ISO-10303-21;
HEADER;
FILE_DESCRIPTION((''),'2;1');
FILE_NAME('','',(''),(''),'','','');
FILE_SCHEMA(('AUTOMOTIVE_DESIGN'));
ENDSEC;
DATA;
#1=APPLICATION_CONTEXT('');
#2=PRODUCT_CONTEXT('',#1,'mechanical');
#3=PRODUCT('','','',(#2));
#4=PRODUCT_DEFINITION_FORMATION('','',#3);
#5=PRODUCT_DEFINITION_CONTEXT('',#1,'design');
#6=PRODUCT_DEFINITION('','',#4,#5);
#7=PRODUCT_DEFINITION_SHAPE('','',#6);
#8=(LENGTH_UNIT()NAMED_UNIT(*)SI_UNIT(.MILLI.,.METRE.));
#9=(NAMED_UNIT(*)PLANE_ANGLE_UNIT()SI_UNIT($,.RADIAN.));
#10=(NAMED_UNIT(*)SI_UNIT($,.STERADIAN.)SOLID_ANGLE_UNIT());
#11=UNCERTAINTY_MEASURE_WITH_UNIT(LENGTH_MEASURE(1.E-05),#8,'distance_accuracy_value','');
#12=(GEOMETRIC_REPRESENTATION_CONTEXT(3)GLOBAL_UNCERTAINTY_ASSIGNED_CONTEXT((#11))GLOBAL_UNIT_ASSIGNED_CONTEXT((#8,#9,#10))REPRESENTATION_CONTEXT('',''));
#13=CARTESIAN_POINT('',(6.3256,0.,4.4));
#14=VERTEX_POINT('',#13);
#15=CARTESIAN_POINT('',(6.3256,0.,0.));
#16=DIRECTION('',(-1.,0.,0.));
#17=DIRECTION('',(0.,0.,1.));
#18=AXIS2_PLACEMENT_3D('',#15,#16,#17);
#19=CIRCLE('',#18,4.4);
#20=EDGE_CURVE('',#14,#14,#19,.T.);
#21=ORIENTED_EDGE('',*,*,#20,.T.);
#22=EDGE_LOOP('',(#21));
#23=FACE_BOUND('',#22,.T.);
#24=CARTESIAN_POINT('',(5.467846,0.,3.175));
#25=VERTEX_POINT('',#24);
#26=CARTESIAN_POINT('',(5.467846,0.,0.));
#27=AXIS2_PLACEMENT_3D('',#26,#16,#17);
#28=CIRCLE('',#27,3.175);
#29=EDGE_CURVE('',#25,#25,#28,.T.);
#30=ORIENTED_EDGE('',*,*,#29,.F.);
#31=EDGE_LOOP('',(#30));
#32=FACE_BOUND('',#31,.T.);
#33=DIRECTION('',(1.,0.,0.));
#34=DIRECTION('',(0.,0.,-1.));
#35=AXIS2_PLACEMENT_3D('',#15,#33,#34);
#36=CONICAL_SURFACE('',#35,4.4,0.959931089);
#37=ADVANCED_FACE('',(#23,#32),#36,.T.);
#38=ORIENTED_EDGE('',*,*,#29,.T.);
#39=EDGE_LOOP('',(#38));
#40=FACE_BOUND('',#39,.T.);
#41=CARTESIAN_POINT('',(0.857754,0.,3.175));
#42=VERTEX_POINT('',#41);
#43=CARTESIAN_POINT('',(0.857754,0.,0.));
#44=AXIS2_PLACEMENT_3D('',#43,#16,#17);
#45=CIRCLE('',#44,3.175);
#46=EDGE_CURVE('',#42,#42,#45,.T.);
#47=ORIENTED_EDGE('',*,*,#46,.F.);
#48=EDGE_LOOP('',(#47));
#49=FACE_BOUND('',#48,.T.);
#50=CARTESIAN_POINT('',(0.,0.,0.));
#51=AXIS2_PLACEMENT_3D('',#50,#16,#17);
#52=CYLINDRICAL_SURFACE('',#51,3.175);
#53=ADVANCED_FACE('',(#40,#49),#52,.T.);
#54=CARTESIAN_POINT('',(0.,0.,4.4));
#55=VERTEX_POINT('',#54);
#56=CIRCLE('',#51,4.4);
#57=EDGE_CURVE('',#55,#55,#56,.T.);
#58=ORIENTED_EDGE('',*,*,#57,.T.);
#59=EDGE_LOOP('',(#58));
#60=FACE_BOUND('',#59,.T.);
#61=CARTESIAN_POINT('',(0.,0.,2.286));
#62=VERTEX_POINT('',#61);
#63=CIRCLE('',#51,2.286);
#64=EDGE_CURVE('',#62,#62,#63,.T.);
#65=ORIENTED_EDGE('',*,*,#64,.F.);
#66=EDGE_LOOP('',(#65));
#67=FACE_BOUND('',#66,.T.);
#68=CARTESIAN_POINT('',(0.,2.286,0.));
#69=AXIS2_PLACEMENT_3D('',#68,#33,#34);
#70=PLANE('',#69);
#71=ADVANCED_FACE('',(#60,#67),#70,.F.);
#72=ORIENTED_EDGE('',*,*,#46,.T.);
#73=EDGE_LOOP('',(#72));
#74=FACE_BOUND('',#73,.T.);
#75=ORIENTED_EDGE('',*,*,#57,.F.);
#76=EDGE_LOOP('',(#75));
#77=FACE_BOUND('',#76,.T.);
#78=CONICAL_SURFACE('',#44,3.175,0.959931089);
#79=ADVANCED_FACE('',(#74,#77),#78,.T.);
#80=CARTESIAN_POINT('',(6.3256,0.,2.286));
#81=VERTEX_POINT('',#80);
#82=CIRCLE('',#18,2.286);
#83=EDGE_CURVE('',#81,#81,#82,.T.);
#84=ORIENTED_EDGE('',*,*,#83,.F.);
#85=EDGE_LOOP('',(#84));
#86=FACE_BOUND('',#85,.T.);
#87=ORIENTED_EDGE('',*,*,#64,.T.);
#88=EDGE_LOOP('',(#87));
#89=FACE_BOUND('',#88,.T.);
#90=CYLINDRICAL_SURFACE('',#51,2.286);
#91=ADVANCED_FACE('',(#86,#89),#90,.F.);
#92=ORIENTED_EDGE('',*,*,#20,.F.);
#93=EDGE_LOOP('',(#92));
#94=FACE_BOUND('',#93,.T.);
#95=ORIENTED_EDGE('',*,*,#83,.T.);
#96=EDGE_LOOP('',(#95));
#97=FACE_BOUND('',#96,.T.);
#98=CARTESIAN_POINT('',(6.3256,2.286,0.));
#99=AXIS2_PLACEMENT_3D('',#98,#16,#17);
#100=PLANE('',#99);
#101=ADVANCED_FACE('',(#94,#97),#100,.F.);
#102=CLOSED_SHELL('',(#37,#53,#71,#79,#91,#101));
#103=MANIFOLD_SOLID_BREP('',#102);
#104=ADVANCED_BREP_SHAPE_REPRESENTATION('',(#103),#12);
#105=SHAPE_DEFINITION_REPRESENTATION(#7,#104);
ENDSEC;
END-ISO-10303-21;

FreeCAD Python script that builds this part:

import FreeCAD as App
import Part
import Sketcher
Q = App.Units.Quantity


def add_polygon(sketch, points):
    """Adds a closed chain of lines whose ends are joined by coincident constraints."""
    first, n = sketch.GeometryCount, len(points)
    for a, b in zip(points, points[1:] + points[:1]):
        sketch.addGeometry(Part.LineSegment(App.Vector(*a, 0), App.Vector(*b, 0)), False)
    for i in range(n):
        sketch.addConstraint(Sketcher.Constraint("Coincident", first + i, 2, first + (i + 1) % n, 1))

doc = App.newDocument("Part")
body = doc.addObject("PartDesign::Body", "Body")

sketch1 = body.newObject("Sketcher::SketchObject", "Sketch")
sketch1.AttachmentSupport = (doc.getObject("XY_Plane"), [""])
sketch1.MapMode = "FlatFace"
add_polygon(sketch1, [(0, 2.3), (6.3, 2.3), (6.3, 4.4), (5.5, 3.2), (0.9, 3.2), (0, 4.4)])
sketch1.addConstraint([
    Sketcher.Constraint("Horizontal", 0),
    Sketcher.Constraint("Vertical", 1),
    Sketcher.Constraint("Horizontal", 3),
    Sketcher.Constraint("Vertical", 5),
    Sketcher.Constraint("PointOnObject", 4, 2, -2),
    Sketcher.Constraint("Horizontal", 1, 2, 4, 2),
    Sketcher.Constraint("Equal", 2, 4),
    Sketcher.Constraint("Angle", 2, Q("-125 deg")),
    Sketcher.Constraint("DistanceY", -1, 1, 1, 2, Q("4.4 mm")),
    Sketcher.Constraint("DistanceY", 1, 1, 1, 2, Q("2.114 mm")),
    Sketcher.Constraint("DistanceX", 0, 1, 0, 2, Q("6.3256 mm")),
    Sketcher.Constraint("DistanceY", -1, 1, 2, 2, Q("3.175 mm")),
])
revolution = body.newObject("PartDesign::Revolution", "Revolution")
revolution.Profile = sketch1
revolution.ReferenceAxis = (sketch1, ["H_Axis"])
revolution.Angle = 360

doc.recompute()
